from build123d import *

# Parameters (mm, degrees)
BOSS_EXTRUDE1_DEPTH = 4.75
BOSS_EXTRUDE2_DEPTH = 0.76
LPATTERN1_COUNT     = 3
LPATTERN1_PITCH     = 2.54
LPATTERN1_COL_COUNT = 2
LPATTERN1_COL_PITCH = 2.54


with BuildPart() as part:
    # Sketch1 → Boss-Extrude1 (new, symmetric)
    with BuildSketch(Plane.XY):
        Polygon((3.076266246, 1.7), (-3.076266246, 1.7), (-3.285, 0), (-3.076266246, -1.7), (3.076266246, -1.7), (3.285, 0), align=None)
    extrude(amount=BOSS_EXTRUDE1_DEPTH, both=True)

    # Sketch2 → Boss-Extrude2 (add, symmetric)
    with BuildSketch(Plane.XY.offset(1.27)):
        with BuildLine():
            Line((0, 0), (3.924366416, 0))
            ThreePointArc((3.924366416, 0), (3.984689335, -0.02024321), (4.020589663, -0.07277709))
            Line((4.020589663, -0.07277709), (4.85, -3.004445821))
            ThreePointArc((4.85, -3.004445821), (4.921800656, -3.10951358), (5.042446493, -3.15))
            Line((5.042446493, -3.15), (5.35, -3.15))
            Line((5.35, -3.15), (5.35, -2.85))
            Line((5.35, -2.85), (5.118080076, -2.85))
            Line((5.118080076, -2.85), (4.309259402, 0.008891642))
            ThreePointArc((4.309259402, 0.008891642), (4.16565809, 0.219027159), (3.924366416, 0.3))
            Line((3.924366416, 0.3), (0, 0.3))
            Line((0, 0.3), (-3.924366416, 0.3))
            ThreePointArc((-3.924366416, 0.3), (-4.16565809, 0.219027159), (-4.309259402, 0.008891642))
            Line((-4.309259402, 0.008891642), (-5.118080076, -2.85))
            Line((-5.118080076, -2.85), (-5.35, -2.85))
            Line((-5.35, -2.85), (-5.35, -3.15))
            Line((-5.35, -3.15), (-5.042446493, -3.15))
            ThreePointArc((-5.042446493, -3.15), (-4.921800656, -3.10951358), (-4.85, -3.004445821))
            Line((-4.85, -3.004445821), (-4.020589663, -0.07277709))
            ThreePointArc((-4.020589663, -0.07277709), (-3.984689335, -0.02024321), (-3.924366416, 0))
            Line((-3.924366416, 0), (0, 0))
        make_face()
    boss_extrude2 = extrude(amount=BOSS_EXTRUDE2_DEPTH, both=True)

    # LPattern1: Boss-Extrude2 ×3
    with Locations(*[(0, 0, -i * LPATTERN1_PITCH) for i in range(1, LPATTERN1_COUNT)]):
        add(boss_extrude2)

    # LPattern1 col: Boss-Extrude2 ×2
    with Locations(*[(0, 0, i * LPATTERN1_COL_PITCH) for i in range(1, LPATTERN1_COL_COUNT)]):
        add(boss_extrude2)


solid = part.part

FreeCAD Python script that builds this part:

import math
import FreeCAD as App
import Part
import Sketcher
Q = App.Units.Quantity


def add_polygon(sketch, points):
    """Adds a closed chain of lines whose ends are joined by coincident constraints."""
    first, n = sketch.GeometryCount, len(points)
    for a, b in zip(points, points[1:] + points[:1]):
        sketch.addGeometry(Part.LineSegment(App.Vector(*a, 0), App.Vector(*b, 0)), False)
    for i in range(n):
        sketch.addConstraint(Sketcher.Constraint("Coincident", first + i, 2, first + (i + 1) % n, 1))

doc = App.newDocument("Part")
body = doc.addObject("PartDesign::Body", "Body")

sketch1 = body.newObject("Sketcher::SketchObject", "Sketch")
sketch1.AttachmentSupport = (doc.getObject("XY_Plane"), [""])
sketch1.MapMode = "FlatFace"
add_polygon(sketch1, [(3.076266, 1.7), (-3.076266, 1.7), (-3.285, 0), (-3.076266, -1.7), (3.076266, -1.7), (3.285, 0)])
sketch1.addConstraint(Sketcher.Constraint("Horizontal", 0))
sketch1.addConstraint(Sketcher.Constraint("Horizontal", 3))
sketch1.addConstraint(Sketcher.Constraint("Symmetric", 0, 2, 3, 2, -1, 1))
sketch1.addConstraint(Sketcher.Constraint("Symmetric", 1, 2, 4, 2, -1, 1))
sketch1.addConstraint(Sketcher.Constraint("PointOnObject", 1, 2, -1))
sketch1.addConstraint(Sketcher.Constraint("Parallel", 2, 5))
sketch1.addConstraint(Sketcher.Constraint("Vertical", 0, 2, 2, 2))
sketch1.addConstraint(Sketcher.Constraint("Angle", 1, Q("-97 deg")))
sketch1.addConstraint(Sketcher.Constraint("DistanceY", -1, 1, 0, 2, Q("1.7 mm")))
sketch1.addConstraint(Sketcher.Constraint("DistanceX", 1, 2, 4, 2, Q("6.57 mm")))
pad1 = body.newObject("PartDesign::Pad", "Pad")
pad1.Profile = sketch1
pad1.Length = 9.5
pad1.Midplane = True

sketch2 = body.newObject("Sketcher::SketchObject", "Sketch001")
sketch2.AttachmentSupport = (doc.getObject("XY_Plane"), [""])
sketch2.MapMode = "FlatFace"
sketch2.AttachmentOffset = App.Placement(App.Vector(0, 0, 1.27), App.Rotation())
sketch2.addGeometry(Part.ArcOfCircle(Part.Circle(App.Vector(3.924366, -0.1, 0), App.Vector(0, 0, 1), 0.1), math.radians(15.796954), math.radians(90.000001)), False)
sketch2.addGeometry(Part.LineSegment(App.Vector(4.02059, -0.072777, 0), App.Vector(4.85, -3.004446, 0)), False)
sketch2.addGeometry(Part.ArcOfCircle(Part.Circle(App.Vector(5.042446, -2.95, 0), App.Vector(0, 0, 1), 0.2), math.radians(-164.203045), math.radians(-90)), False)
sketch2.addGeometry(Part.LineSegment(App.Vector(5.042446, -3.15, 0), App.Vector(5.35, -3.15, 0)), False)
sketch2.addGeometry(Part.LineSegment(App.Vector(5.35, -3.15, 0), App.Vector(5.35, -2.85, 0)), False)
sketch2.addGeometry(Part.LineSegment(App.Vector(5.35, -2.85, 0), App.Vector(5.11808, -2.85, 0)), False)
sketch2.addGeometry(Part.LineSegment(App.Vector(5.11808, -2.85, 0), App.Vector(4.309259, 0.008892, 0)), False)
sketch2.addGeometry(Part.ArcOfCircle(Part.Circle(App.Vector(3.924366, -0.1, 0), App.Vector(0, 0, 1), 0.4), math.radians(15.796955), math.radians(90)), False)
sketch2.addGeometry(Part.LineSegment(App.Vector(3.924366, 0.3, 0), App.Vector(-3.924366, 0.3, 0)), False)
sketch2.addGeometry(Part.ArcOfCircle(Part.Circle(App.Vector(-3.924366, -0.1, 0), App.Vector(0, 0, 1), 0.4), math.radians(90), math.radians(164.203045)), False)
sketch2.addGeometry(Part.LineSegment(App.Vector(-4.309259, 0.008892, 0), App.Vector(-5.11808, -2.85, 0)), False)
sketch2.addGeometry(Part.LineSegment(App.Vector(-5.11808, -2.85, 0), App.Vector(-5.35, -2.85, 0)), False)
sketch2.addGeometry(Part.LineSegment(App.Vector(-5.35, -2.85, 0), App.Vector(-5.35, -3.15, 0)), False)
sketch2.addGeometry(Part.LineSegment(App.Vector(-5.35, -3.15, 0), App.Vector(-5.042446, -3.15, 0)), False)
sketch2.addGeometry(Part.ArcOfCircle(Part.Circle(App.Vector(-5.042446, -2.95, 0), App.Vector(0, 0, 1), 0.2), math.radians(-90), math.radians(-15.796955)), False)
sketch2.addGeometry(Part.LineSegment(App.Vector(-4.85, -3.004446, 0), App.Vector(-4.02059, -0.072777, 0)), False)
sketch2.addGeometry(Part.ArcOfCircle(Part.Circle(App.Vector(-3.924366, -0.1, 0), App.Vector(0, 0, 1), 0.1), math.radians(89.999999), math.radians(164.203046)), False)
sketch2.addGeometry(Part.LineSegment(App.Vector(-3.924366, 0, 0), App.Vector(3.924366, 0, 0)), False)
sketch2.addConstraint(Sketcher.Constraint("Tangent", 0, 1, 1, 1))
sketch2.addConstraint(Sketcher.Constraint("Tangent", 1, 2, 2, 1))
sketch2.addConstraint(Sketcher.Constraint("Tangent", 2, 2, 3, 1))
sketch2.addConstraint(Sketcher.Constraint("Coincident", 3, 2, 4, 1))
sketch2.addConstraint(Sketcher.Constraint("Coincident", 4, 2, 5, 1))
sketch2.addConstraint(Sketcher.Constraint("Coincident", 5, 2, 6, 1))
sketch2.addConstraint(Sketcher.Constraint("Tangent", 6, 2, 7, 1))
sketch2.addConstraint(Sketcher.Constraint("Tangent", 7, 2, 8, 1))
sketch2.addConstraint(Sketcher.Constraint("Tangent", 8, 2, 9, 1))
sketch2.addConstraint(Sketcher.Constraint("Tangent", 9, 2, 10, 1))
sketch2.addConstraint(Sketcher.Constraint("Coincident", 10, 2, 11, 1))
sketch2.addConstraint(Sketcher.Constraint("Coincident", 11, 2, 12, 1))
sketch2.addConstraint(Sketcher.Constraint("Coincident", 12, 2, 13, 1))
sketch2.addConstraint(Sketcher.Constraint("Tangent", 13, 2, 14, 1))
sketch2.addConstraint(Sketcher.Constraint("Tangent", 14, 2, 15, 1))
sketch2.addConstraint(Sketcher.Constraint("Tangent", 15, 2, 16, 2))
sketch2.addConstraint(Sketcher.Constraint("Tangent", 16, 1, 17, 1))
sketch2.addConstraint(Sketcher.Constraint("Tangent", 17, 2, 0, 2))
sketch2.addConstraint(Sketcher.Constraint("Horizontal", 3))
sketch2.addConstraint(Sketcher.Constraint("Vertical", 4))
sketch2.addConstraint(Sketcher.Constraint("Horizontal", 5))
sketch2.addConstraint(Sketcher.Constraint("Horizontal", 8))
sketch2.addConstraint(Sketcher.Constraint("Horizontal", 11))
sketch2.addConstraint(Sketcher.Constraint("Vertical", 12))
sketch2.addConstraint(Sketcher.Constraint("Horizontal", 13))
sketch2.addConstraint(Sketcher.Constraint("Horizontal", 17))
sketch2.addConstraint(Sketcher.Constraint("Coincident", 7, 3, 0, 3))
sketch2.addConstraint(Sketcher.Constraint("Coincident", 16, 3, 9, 3))
sketch2.addConstraint(Sketcher.Constraint("Equal", 7, 9))
sketch2.addConstraint(Sketcher.Constraint("Equal", 2, 14))
sketch2.addConstraint(Sketcher.Constraint("Symmetric", 16, 1, 17, 2, -1, 1))
sketch2.addConstraint(Sketcher.Constraint("Symmetric", 2, 3, 14, 3, -2))
sketch2.addConstraint(Sketcher.Constraint("Symmetric", 5, 2, 10, 2, -2))
sketch2.addConstraint(Sketcher.Constraint("Parallel", 1, 6))
sketch2.addConstraint(Sketcher.Constraint("Equal", 5, 11))
sketch2.addConstraint(Sketcher.Constraint("Radius", 0, Q("0.1 mm")))
sketch2.addConstraint(Sketcher.Constraint("Radius", 2, Q("0.2 mm")))
sketch2.addConstraint(Sketcher.Constraint("Radius", 7, Q("0.4 mm")))
sketch2.addConstraint(Sketcher.Constraint("DistanceY", 4, 1, 4, 2, Q("0.3 mm")))
sketch2.addConstraint(Sketcher.Constraint("DistanceX", 1, 2, 3, 2, Q("0.5 mm")))
sketch2.addConstraint(Sketcher.Constraint("DistanceY", 2, 3, -1, 1, Q("2.95 mm")))
sketch2.addConstraint(Sketcher.Constraint("DistanceX", -1, 1, 1, 2, Q("4.85 mm")))
sketch2.addConstraint(Sketcher.Constraint("DistanceX", 5, 2, 5, 1, Q("0.23192 mm")))
pad2 = body.newObject("PartDesign::Pad", "Pad001")
pad2.Profile = sketch2
pad2.Length = 1.52
pad2.Midplane = True
doc.recompute()

linearpattern = body.newObject("PartDesign::LinearPattern", "LinearPattern")
linearpattern.Originals = [pad2]
linearpattern.Direction = (doc.getObject("Z_Axis"), [""])
linearpattern.Mode = "offset"
linearpattern.Offset = 2.54
linearpattern.Occurrences = 3
linearpattern.Reversed = True
body.Tip = linearpattern
doc.recompute()

linearpattern2 = body.newObject("PartDesign::LinearPattern", "LinearPattern001")
linearpattern2.Originals = [pad2]
linearpattern2.Direction = (doc.getObject("Z_Axis"), [""])
linearpattern2.Mode = "offset"
linearpattern2.Offset = 2.54
linearpattern2.Occurrences = 2
body.Tip = linearpattern2

doc.recompute()
